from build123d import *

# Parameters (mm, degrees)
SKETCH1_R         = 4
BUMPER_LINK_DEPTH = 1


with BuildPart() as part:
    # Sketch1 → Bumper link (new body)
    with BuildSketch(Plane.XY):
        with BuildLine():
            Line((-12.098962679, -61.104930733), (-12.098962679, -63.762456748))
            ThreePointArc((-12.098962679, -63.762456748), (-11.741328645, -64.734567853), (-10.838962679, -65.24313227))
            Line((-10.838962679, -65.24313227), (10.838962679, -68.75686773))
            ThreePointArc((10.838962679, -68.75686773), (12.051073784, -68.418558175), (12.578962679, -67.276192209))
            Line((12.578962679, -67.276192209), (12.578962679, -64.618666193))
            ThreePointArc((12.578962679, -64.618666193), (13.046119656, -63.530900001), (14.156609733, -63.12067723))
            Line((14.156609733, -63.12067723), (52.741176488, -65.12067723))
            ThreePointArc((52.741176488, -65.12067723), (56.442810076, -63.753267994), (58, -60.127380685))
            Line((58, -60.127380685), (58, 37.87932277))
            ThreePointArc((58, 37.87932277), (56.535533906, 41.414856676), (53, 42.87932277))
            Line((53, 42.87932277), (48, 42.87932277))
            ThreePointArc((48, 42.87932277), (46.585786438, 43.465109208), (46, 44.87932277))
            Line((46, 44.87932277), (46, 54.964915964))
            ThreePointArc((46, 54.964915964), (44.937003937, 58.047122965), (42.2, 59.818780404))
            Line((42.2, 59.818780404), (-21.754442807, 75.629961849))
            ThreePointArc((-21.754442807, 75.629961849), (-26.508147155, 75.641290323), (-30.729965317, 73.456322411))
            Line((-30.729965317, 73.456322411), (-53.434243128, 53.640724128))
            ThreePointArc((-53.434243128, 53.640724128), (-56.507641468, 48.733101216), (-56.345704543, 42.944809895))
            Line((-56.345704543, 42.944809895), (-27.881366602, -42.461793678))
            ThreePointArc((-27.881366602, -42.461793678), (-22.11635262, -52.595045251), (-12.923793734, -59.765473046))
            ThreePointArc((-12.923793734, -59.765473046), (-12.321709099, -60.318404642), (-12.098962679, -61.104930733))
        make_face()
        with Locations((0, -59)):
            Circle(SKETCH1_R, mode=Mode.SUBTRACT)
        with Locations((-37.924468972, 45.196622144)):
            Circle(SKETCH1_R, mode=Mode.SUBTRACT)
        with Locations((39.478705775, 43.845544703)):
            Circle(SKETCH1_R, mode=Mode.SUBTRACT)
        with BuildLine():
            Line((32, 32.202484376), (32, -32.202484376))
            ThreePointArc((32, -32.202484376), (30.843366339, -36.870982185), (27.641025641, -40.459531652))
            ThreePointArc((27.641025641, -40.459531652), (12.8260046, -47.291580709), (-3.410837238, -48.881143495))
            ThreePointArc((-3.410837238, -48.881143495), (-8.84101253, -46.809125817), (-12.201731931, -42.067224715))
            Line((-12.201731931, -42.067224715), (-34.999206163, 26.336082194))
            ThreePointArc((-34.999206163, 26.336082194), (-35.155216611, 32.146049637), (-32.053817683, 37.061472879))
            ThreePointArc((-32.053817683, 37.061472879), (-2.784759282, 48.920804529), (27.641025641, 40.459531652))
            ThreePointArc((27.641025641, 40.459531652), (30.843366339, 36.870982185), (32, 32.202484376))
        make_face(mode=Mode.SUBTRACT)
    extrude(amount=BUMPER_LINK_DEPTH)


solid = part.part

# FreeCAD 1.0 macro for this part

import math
import FreeCAD as App
import Part
import Sketcher

doc = App.newDocument("Part")
body = doc.addObject("PartDesign::Body", "Body")

# Sketch on XY plane
sketch1 = body.newObject("Sketcher::SketchObject", "Sketch")
sketch1.AttachmentSupport = (doc.getObject("XY_Plane"), [""])
sketch1.MapMode = "FlatFace"
sketch1.addGeometry(Part.LineSegment(App.Vector(-12.1, -61.1, 0), App.Vector(-12.1, -63.8, 0)), False)
sketch1.addGeometry(Part.ArcOfCircle(Part.Circle(App.Vector(-10.6, -63.8, 0), App.Vector(0, 0, 1), 1.5), math.radians(180), math.radians(261)), False)
sketch1.addGeometry(Part.LineSegment(App.Vector(-10.8, -65.2, 0), App.Vector(10.8, -68.8, 0)), False)
sketch1.addGeometry(Part.ArcOfCircle(Part.Circle(App.Vector(11.1, -67.3, 0), App.Vector(0, 0, 1), 1.5), math.radians(-99), math.radians(0)), False)
sketch1.addGeometry(Part.LineSegment(App.Vector(12.6, -67.3, 0), App.Vector(12.6, -64.6, 0)), False)
sketch1.addGeometry(Part.ArcOfCircle(Part.Circle(App.Vector(14.1, -64.6, 0), App.Vector(0, 0, 1), 1.5), math.radians(87), math.radians(180)), False)
sketch1.addGeometry(Part.LineSegment(App.Vector(14.2, -63.1, 0), App.Vector(52.7, -65.1, 0)), False)
sketch1.addGeometry(Part.ArcOfCircle(Part.Circle(App.Vector(53, -60.1, 0), App.Vector(0, 0, 1), 5), math.radians(-93), math.radians(0)), False)
sketch1.addGeometry(Part.LineSegment(App.Vector(58, -60.1, 0), App.Vector(58, 37.9, 0)), False)
sketch1.addGeometry(Part.ArcOfCircle(Part.Circle(App.Vector(53, 37.9, 0), App.Vector(0, 0, 1), 5), math.radians(0), math.radians(90)), False)
sketch1.addGeometry(Part.LineSegment(App.Vector(53, 42.9, 0), App.Vector(48, 42.9, 0)), False)
sketch1.addGeometry(Part.ArcOfCircle(Part.Circle(App.Vector(48, 44.9, 0), App.Vector(0, 0, 1), 2), math.radians(-180), math.radians(-90)), False)
sketch1.addGeometry(Part.LineSegment(App.Vector(46, 44.9, 0), App.Vector(46, 55, 0)), False)
sketch1.addGeometry(Part.ArcOfCircle(Part.Circle(App.Vector(41, 55, 0), App.Vector(0, 0, 1), 5), math.radians(0), math.radians(76)), False)
sketch1.addGeometry(Part.LineSegment(App.Vector(42.2, 59.8, 0), App.Vector(-21.8, 75.6, 0)), False)
sketch1.addGeometry(Part.ArcOfCircle(Part.Circle(App.Vector(-24.2, 65.9, 0), App.Vector(0, 0, 1), 10), math.radians(76), math.radians(131)), False)
sketch1.addGeometry(Part.LineSegment(App.Vector(-30.7, 73.5, 0), App.Vector(-53.4, 53.6, 0)), False)
sketch1.addGeometry(Part.ArcOfCircle(Part.Circle(App.Vector(-46.9, 46.1, 0), App.Vector(0, 0, 1), 10), math.radians(131), math.radians(198)), False)
sketch1.addGeometry(Part.LineSegment(App.Vector(-56.3, 42.9, 0), App.Vector(-27.9, -42.5, 0)), False)
sketch1.addGeometry(Part.ArcOfCircle(Part.Circle(App.Vector(0.6, -33, 0), App.Vector(0, 0, 1), 30), math.radians(-162), math.radians(-117)), False)
sketch1.addGeometry(Part.ArcOfCircle(Part.Circle(App.Vector(-13.6, -61.1, 0), App.Vector(0, 0, 1), 1.5), math.radians(0), math.radians(63)), False)
sketch1.addGeometry(Part.Circle(App.Vector(0, -59, 0), App.Vector(0, 0, 1), 4), False)
sketch1.addGeometry(Part.ArcOfCircle(Part.Circle(App.Vector(22, 32.2, 0), App.Vector(0, 0, 1), 10), math.radians(0), math.radians(56)), False)
sketch1.addGeometry(Part.LineSegment(App.Vector(32, 32.2, 0), App.Vector(32, -32.2, 0)), False)
sketch1.addGeometry(Part.ArcOfCircle(Part.Circle(App.Vector(22, -32.2, 0), App.Vector(0, 0, 1), 10), math.radians(-56), math.radians(0)), False)
sketch1.addGeometry(Part.ArcOfCircle(Part.Circle(App.Vector(0, 0, 0), App.Vector(0, 0, 1), 49), math.radians(-94), math.radians(-56)), False)
sketch1.addGeometry(Part.ArcOfCircle(Part.Circle(App.Vector(-2.7, -38.9, 0), App.Vector(0, 0, 1), 10), math.radians(-162), math.radians(-94)), False)
sketch1.addGeometry(Part.LineSegment(App.Vector(-12.2, -42.1, 0), App.Vector(-35, 26.3, 0)), False)
sketch1.addGeometry(Part.ArcOfCircle(Part.Circle(App.Vector(-25.5, 29.5, 0), App.Vector(0, 0, 1), 10), math.radians(131), math.radians(198)), False)
sketch1.addGeometry(Part.ArcOfCircle(Part.Circle(App.Vector(0, 0, 0), App.Vector(0, 0, 1), 49), math.radians(56), math.radians(131)), False)
sketch1.addGeometry(Part.Circle(App.Vector(-37.9, 45.2, 0), App.Vector(0, 0, 1), 4), False)
sketch1.addGeometry(Part.Circle(App.Vector(39.5, 43.8, 0), App.Vector(0, 0, 1), 4), False)
sketch1.addConstraint(Sketcher.Constraint("Tangent", 0, 2, 1, 1))
sketch1.addConstraint(Sketcher.Constraint("Tangent", 1, 2, 2, 1))
sketch1.addConstraint(Sketcher.Constraint("Tangent", 2, 2, 3, 1))
sketch1.addConstraint(Sketcher.Constraint("Tangent", 3, 2, 4, 1))
sketch1.addConstraint(Sketcher.Constraint("Tangent", 4, 2, 5, 2))
sketch1.addConstraint(Sketcher.Constraint("Tangent", 5, 1, 6, 1))
sketch1.addConstraint(Sketcher.Constraint("Tangent", 6, 2, 7, 1))
sketch1.addConstraint(Sketcher.Constraint("Tangent", 7, 2, 8, 1))
sketch1.addConstraint(Sketcher.Constraint("Tangent", 8, 2, 9, 1))
sketch1.addConstraint(Sketcher.Constraint("Tangent", 9, 2, 10, 1))
sketch1.addConstraint(Sketcher.Constraint("Tangent", 10, 2, 11, 2))
sketch1.addConstraint(Sketcher.Constraint("Tangent", 11, 1, 12, 1))
sketch1.addConstraint(Sketcher.Constraint("Tangent", 12, 2, 13, 1))
sketch1.addConstraint(Sketcher.Constraint("Tangent", 13, 2, 14, 1))
sketch1.addConstraint(Sketcher.Constraint("Tangent", 14, 2, 15, 1))
sketch1.addConstraint(Sketcher.Constraint("Tangent", 15, 2, 16, 1))
sketch1.addConstraint(Sketcher.Constraint("Tangent", 16, 2, 17, 1))
sketch1.addConstraint(Sketcher.Constraint("Tangent", 17, 2, 18, 1))
sketch1.addConstraint(Sketcher.Constraint("Tangent", 18, 2, 19, 1))
sketch1.addConstraint(Sketcher.Constraint("Tangent", 19, 2, 20, 2))
sketch1.addConstraint(Sketcher.Constraint("Tangent", 20, 1, 0, 1))
sketch1.addConstraint(Sketcher.Constraint("Tangent", 22, 1, 23, 1))
sketch1.addConstraint(Sketcher.Constraint("Tangent", 23, 2, 24, 2))
sketch1.addConstraint(Sketcher.Constraint("Tangent", 24, 1, 25, 2))
sketch1.addConstraint(Sketcher.Constraint("Tangent", 25, 1, 26, 2))
sketch1.addConstraint(Sketcher.Constraint("Tangent", 26, 1, 27, 1))
sketch1.addConstraint(Sketcher.Constraint("Tangent", 27, 2, 28, 2))
sketch1.addConstraint(Sketcher.Constraint("Tangent", 28, 1, 29, 2))
sketch1.addConstraint(Sketcher.Constraint("Tangent", 29, 1, 22, 2))
sketch1.addConstraint(Sketcher.Constraint("Vertical", 0))
sketch1.addConstraint(Sketcher.Constraint("Vertical", 4))
sketch1.addConstraint(Sketcher.Constraint("Vertical", 8))
sketch1.addConstraint(Sketcher.Constraint("Horizontal", 10))
sketch1.addConstraint(Sketcher.Constraint("Vertical", 12))
sketch1.addConstraint(Sketcher.Constraint("Vertical", 23))
sketch1.addConstraint(Sketcher.Constraint("Coincident", 25, 3, -1, 1))
sketch1.addConstraint(Sketcher.Constraint("Coincident", 29, 3, -1, 1))
sketch1.addConstraint(Sketcher.Constraint("Equal", 1, 3))
sketch1.addConstraint(Sketcher.Constraint("Equal", 3, 5))
sketch1.addConstraint(Sketcher.Constraint("Equal", 7, 9))
sketch1.addConstraint(Sketcher.Constraint("Equal", 9, 13))
sketch1.addConstraint(Sketcher.Constraint("Equal", 15, 17))
sketch1.addConstraint(Sketcher.Constraint("Equal", 5, 20))
sketch1.addConstraint(Sketcher.Constraint("Equal", 17, 22))
sketch1.addConstraint(Sketcher.Constraint("Equal", 22, 24))
sketch1.addConstraint(Sketcher.Constraint("Equal", 24, 26))
sketch1.addConstraint(Sketcher.Constraint("Equal", 26, 28))
sketch1.addConstraint(Sketcher.Constraint("Equal", 25, 29))
sketch1.addConstraint(Sketcher.Constraint("Equal", 21, 30))
sketch1.addConstraint(Sketcher.Constraint("Equal", 30, 31))
sketch1.addConstraint(Sketcher.Constraint("PointOnObject", 21, 3, -2))
sketch1.addConstraint(Sketcher.Constraint("Parallel", 18, 27))
sketch1.addConstraint(Sketcher.Constraint("Equal", 0, 4))
sketch1.addConstraint(Sketcher.Constraint("Diameter", 21, 8.0))
sketch1.addConstraint(Sketcher.Constraint("Radius", 7, 5.0))
sketch1.addConstraint(Sketcher.Constraint("Radius", 11, 2.0))
sketch1.addConstraint(Sketcher.Constraint("Radius", 15, 10.0))
sketch1.addConstraint(Sketcher.Constraint("Radius", 19, 30.0))
sketch1.addConstraint(Sketcher.Constraint("Radius", 25, 49.0))
sketch1.addConstraint(Sketcher.Constraint("Radius", 1, 1.5))
sketch1.addConstraint(Sketcher.Constraint("DistanceX", 10, 2, 10, 1, 5.0))
sketch1.addConstraint(Sketcher.Constraint("DistanceX", -1, 1, 7, 3, 53.0))
sketch1.addConstraint(Sketcher.Constraint("DistanceY", 21, 3, -1, 1, 59.0))
sketch1.addConstraint(Sketcher.Constraint("DistanceX", -1, 1, 22, 3, 22.0))
sketch1.addConstraint(Sketcher.Constraint("DistanceY", 6, 2, 5, 1, 2.0))
sketch1.addConstraint(Sketcher.Constraint("DistanceX", -1, 1, 13, 2, 42.2))
sketch1.addConstraint(Sketcher.Constraint("DistanceX", 1, 2, 1, 3, 0.24))
sketch1.addConstraint(Sketcher.Constraint("DistanceY", 26, 3, -1, 1, 38.9054))
sketch1.addConstraint(Sketcher.Constraint("DistanceY", 5, 3, 15, 3, 130.540899))
sketch1.addConstraint(Sketcher.Constraint("DistanceY", 17, 3, 15, 3, 19.815598))
sketch1.addConstraint(Sketcher.Constraint("DistanceX", 17, 3, 28, 3, 21.346498))
sketch1.addConstraint(Sketcher.Constraint("DistanceY", 1, 2, 20, 3, 4.138202))
sketch1.addConstraint(Sketcher.Constraint("DistanceY", 30, 3, 15, 2, 28.2597))
sketch1.addConstraint(Sketcher.Constraint("DistanceX", 16, 2, 15, 3, 29.2798))
sketch1.addConstraint(Sketcher.Constraint("Distance", 27, 72.102269))
sketch1.addConstraint(Sketcher.Constraint("DistanceY", 8, 1, 8, 2, 98.006703))
sketch1.addConstraint(Sketcher.Constraint("DistanceY", 7, 3, -1, 1, 60.127381))
sketch1.addConstraint(Sketcher.Constraint("DistanceY", 19, 3, -1, 1, 32.976319))
sketch1.addConstraint(Sketcher.Constraint("DistanceY", 20, 3, -1, 1, 61.104931))
sketch1.addConstraint(Sketcher.Constraint("DistanceX", 30, 3, -1, 1, 37.924469))
sketch1.addConstraint(Sketcher.Constraint("DistanceY", 31, 3, 11, 3, 1.033778))
sketch1.addConstraint(Sketcher.Constraint("DistanceX", 29, 1, 31, 3, 11.83768))
pad1 = body.newObject("PartDesign::Pad", "Pad")
pad1.Profile = sketch1
pad1.Length = 1

doc.recompute()
